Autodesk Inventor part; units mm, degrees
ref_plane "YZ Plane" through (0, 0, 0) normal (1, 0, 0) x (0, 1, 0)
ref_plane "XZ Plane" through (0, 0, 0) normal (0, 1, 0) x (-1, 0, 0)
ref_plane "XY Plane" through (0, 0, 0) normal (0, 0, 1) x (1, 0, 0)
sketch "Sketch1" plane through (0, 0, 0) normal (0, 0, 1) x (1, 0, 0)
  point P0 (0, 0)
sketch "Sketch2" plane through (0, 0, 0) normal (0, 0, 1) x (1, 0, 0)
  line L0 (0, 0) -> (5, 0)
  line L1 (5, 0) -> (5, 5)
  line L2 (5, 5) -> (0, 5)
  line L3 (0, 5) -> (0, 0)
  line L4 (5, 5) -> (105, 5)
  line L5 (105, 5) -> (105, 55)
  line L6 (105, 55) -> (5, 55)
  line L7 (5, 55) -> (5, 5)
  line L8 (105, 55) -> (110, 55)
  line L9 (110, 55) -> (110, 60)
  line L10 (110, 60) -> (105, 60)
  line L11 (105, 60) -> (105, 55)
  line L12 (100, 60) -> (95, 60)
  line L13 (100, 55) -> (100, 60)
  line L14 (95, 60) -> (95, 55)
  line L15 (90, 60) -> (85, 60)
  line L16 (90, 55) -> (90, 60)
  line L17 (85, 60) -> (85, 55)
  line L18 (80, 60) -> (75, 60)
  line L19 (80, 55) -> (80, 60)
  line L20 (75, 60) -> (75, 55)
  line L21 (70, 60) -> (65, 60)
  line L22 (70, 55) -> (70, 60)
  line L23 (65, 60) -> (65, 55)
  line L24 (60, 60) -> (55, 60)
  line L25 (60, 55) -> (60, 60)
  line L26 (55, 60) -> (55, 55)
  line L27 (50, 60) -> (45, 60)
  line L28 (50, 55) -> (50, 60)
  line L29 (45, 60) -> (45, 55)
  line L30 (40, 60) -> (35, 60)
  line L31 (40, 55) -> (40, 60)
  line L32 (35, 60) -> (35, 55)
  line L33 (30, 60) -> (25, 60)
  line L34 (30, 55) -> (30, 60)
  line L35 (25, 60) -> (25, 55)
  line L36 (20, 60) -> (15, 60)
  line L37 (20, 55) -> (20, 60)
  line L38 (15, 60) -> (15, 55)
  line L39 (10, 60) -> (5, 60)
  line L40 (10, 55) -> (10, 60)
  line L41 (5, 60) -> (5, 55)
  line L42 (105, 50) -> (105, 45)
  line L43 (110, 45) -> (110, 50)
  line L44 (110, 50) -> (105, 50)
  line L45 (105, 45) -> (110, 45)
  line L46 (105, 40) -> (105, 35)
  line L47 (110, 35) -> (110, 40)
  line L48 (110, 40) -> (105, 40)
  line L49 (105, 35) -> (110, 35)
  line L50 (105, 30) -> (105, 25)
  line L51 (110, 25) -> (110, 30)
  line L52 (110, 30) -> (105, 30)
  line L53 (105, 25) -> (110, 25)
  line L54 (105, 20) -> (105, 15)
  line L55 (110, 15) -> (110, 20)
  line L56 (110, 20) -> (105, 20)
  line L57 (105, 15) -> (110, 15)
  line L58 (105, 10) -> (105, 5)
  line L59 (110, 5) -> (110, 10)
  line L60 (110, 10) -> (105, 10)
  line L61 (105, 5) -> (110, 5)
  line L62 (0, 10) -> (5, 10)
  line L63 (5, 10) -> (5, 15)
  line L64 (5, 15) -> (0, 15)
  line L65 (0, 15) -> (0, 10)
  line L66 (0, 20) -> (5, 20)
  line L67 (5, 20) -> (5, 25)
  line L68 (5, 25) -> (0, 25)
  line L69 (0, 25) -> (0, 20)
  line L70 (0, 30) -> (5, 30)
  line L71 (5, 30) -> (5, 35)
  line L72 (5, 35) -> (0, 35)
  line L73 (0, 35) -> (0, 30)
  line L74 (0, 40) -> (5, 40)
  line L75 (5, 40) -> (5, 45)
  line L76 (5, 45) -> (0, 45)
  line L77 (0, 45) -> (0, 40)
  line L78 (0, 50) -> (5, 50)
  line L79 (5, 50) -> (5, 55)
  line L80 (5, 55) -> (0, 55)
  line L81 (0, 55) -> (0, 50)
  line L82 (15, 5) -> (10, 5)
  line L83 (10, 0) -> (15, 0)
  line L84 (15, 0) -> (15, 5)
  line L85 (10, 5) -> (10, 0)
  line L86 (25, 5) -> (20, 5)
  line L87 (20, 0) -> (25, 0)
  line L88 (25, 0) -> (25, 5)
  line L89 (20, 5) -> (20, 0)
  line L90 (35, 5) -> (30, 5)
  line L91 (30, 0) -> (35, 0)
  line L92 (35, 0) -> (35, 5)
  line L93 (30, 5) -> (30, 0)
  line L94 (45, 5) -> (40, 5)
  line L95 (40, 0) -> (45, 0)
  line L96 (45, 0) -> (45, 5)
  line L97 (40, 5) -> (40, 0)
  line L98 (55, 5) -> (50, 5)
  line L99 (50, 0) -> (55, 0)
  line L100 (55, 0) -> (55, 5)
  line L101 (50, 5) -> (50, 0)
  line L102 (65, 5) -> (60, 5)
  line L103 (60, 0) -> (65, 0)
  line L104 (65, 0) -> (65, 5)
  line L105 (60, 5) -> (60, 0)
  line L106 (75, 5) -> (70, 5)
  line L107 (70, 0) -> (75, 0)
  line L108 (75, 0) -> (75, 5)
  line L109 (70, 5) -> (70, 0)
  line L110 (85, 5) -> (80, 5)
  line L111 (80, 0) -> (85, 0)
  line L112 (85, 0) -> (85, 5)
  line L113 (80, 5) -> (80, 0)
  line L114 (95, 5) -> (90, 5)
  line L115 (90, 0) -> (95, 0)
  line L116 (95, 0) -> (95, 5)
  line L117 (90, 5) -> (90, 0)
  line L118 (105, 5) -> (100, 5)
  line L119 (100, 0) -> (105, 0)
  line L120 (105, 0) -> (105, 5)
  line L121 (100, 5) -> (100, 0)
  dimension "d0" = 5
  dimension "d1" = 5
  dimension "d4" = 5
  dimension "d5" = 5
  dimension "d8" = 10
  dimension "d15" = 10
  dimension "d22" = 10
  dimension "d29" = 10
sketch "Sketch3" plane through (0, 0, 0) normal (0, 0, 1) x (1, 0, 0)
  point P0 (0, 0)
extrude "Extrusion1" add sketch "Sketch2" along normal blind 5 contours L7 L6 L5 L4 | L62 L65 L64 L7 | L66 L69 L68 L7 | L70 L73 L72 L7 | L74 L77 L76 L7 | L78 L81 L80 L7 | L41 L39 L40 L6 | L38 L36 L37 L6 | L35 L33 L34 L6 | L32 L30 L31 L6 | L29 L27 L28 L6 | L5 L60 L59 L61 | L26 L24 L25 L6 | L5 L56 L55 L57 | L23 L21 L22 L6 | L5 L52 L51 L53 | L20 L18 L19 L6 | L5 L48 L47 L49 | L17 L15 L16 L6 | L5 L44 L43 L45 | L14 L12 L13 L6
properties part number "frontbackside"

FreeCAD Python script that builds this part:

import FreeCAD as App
import Part
import Sketcher


def add_polygon(sketch, points):
    """Adds a closed chain of lines whose ends are joined by coincident constraints."""
    first, n = sketch.GeometryCount, len(points)
    for a, b in zip(points, points[1:] + points[:1]):
        sketch.addGeometry(Part.LineSegment(App.Vector(*a, 0), App.Vector(*b, 0)), False)
    for i in range(n):
        sketch.addConstraint(Sketcher.Constraint("Coincident", first + i, 2, first + (i + 1) % n, 1))

doc = App.newDocument("Part")
body = doc.addObject("PartDesign::Body", "Body")

sketch1 = body.newObject("Sketcher::SketchObject", "Sketch")
sketch1.AttachmentSupport = (doc.getObject("XY_Plane"), [""])
sketch1.MapMode = "FlatFace"
add_polygon(sketch1, [(5, 10), (5, 5), (110, 5), (110, 10), (105, 10), (105, 15), (110, 15), (110, 20), (105, 20), (105, 25), (110, 25), (110, 30), (105, 30), (105, 35), (110, 35), (110, 40), (105, 40), (105, 45), (110, 45), (110, 50), (105, 50), (105, 55), (100, 55), (100, 60), (95, 60), (95, 55), (90, 55), (90, 60), (85, 60), (85, 55), (80, 55), (80, 60), (75, 60), (75, 55), (70, 55), (70, 60), (65, 60), (65, 55), (60, 55), (60, 60), (55, 60), (55, 55), (50, 55), (50, 60), (45, 60), (45, 55), (40, 55), (40, 60), (35, 60), (35, 55), (30, 55), (30, 60), (25, 60), (25, 55), (20, 55), (20, 60), (15, 60), (15, 55), (10, 55), (10, 60), (5, 60), (5, 55), (0, 55), (0, 50), (5, 50), (5, 45), (0, 45), (0, 40), (5, 40), (5, 35), (0, 35), (0, 30), (5, 30), (5, 25), (0, 25), (0, 20), (5, 20), (5, 15), (0, 15), (0, 10)])
sketch1.addConstraint(Sketcher.Constraint("Vertical", 0))
sketch1.addConstraint(Sketcher.Constraint("Horizontal", 1))
sketch1.addConstraint(Sketcher.Constraint("Vertical", 2))
sketch1.addConstraint(Sketcher.Constraint("Horizontal", 3))
sketch1.addConstraint(Sketcher.Constraint("Vertical", 4))
sketch1.addConstraint(Sketcher.Constraint("Horizontal", 5))
sketch1.addConstraint(Sketcher.Constraint("Vertical", 6))
sketch1.addConstraint(Sketcher.Constraint("Horizontal", 7))
sketch1.addConstraint(Sketcher.Constraint("Vertical", 8))
sketch1.addConstraint(Sketcher.Constraint("Horizontal", 9))
sketch1.addConstraint(Sketcher.Constraint("Vertical", 10))
sketch1.addConstraint(Sketcher.Constraint("Horizontal", 11))
sketch1.addConstraint(Sketcher.Constraint("Vertical", 12))
sketch1.addConstraint(Sketcher.Constraint("Horizontal", 13))
sketch1.addConstraint(Sketcher.Constraint("Vertical", 14))
sketch1.addConstraint(Sketcher.Constraint("Horizontal", 15))
sketch1.addConstraint(Sketcher.Constraint("Vertical", 16))
sketch1.addConstraint(Sketcher.Constraint("Horizontal", 17))
sketch1.addConstraint(Sketcher.Constraint("Vertical", 18))
sketch1.addConstraint(Sketcher.Constraint("Horizontal", 19))
sketch1.addConstraint(Sketcher.Constraint("Vertical", 20))
sketch1.addConstraint(Sketcher.Constraint("Horizontal", 21))
sketch1.addConstraint(Sketcher.Constraint("Vertical", 22))
sketch1.addConstraint(Sketcher.Constraint("Horizontal", 23))
sketch1.addConstraint(Sketcher.Constraint("Vertical", 24))
sketch1.addConstraint(Sketcher.Constraint("Horizontal", 25))
sketch1.addConstraint(Sketcher.Constraint("Vertical", 26))
sketch1.addConstraint(Sketcher.Constraint("Horizontal", 27))
sketch1.addConstraint(Sketcher.Constraint("Vertical", 28))
sketch1.addConstraint(Sketcher.Constraint("Horizontal", 29))
sketch1.addConstraint(Sketcher.Constraint("Vertical", 30))
sketch1.addConstraint(Sketcher.Constraint("Horizontal", 31))
sketch1.addConstraint(Sketcher.Constraint("Vertical", 32))
sketch1.addConstraint(Sketcher.Constraint("Horizontal", 33))
sketch1.addConstraint(Sketcher.Constraint("Vertical", 34))
sketch1.addConstraint(Sketcher.Constraint("Horizontal", 35))
sketch1.addConstraint(Sketcher.Constraint("Vertical", 36))
sketch1.addConstraint(Sketcher.Constraint("Horizontal", 37))
sketch1.addConstraint(Sketcher.Constraint("Vertical", 38))
sketch1.addConstraint(Sketcher.Constraint("Horizontal", 39))
sketch1.addConstraint(Sketcher.Constraint("Vertical", 40))
sketch1.addConstraint(Sketcher.Constraint("Horizontal", 41))
sketch1.addConstraint(Sketcher.Constraint("Vertical", 42))
sketch1.addConstraint(Sketcher.Constraint("Horizontal", 43))
sketch1.addConstraint(Sketcher.Constraint("Vertical", 44))
sketch1.addConstraint(Sketcher.Constraint("Horizontal", 45))
sketch1.addConstraint(Sketcher.Constraint("Vertical", 46))
sketch1.addConstraint(Sketcher.Constraint("Horizontal", 47))
sketch1.addConstraint(Sketcher.Constraint("Vertical", 48))
sketch1.addConstraint(Sketcher.Constraint("Horizontal", 49))
sketch1.addConstraint(Sketcher.Constraint("Vertical", 50))
sketch1.addConstraint(Sketcher.Constraint("Horizontal", 51))
sketch1.addConstraint(Sketcher.Constraint("Vertical", 52))
sketch1.addConstraint(Sketcher.Constraint("Horizontal", 53))
sketch1.addConstraint(Sketcher.Constraint("Vertical", 54))
sketch1.addConstraint(Sketcher.Constraint("Horizontal", 55))
sketch1.addConstraint(Sketcher.Constraint("Vertical", 56))
sketch1.addConstraint(Sketcher.Constraint("Horizontal", 57))
sketch1.addConstraint(Sketcher.Constraint("Vertical", 58))
sketch1.addConstraint(Sketcher.Constraint("Horizontal", 59))
sketch1.addConstraint(Sketcher.Constraint("Vertical", 60))
sketch1.addConstraint(Sketcher.Constraint("Horizontal", 61))
sketch1.addConstraint(Sketcher.Constraint("Vertical", 62))
sketch1.addConstraint(Sketcher.Constraint("Horizontal", 63))
sketch1.addConstraint(Sketcher.Constraint("Vertical", 64))
sketch1.addConstraint(Sketcher.Constraint("Horizontal", 65))
sketch1.addConstraint(Sketcher.Constraint("Vertical", 66))
sketch1.addConstraint(Sketcher.Constraint("Horizontal", 67))
sketch1.addConstraint(Sketcher.Constraint("Vertical", 68))
sketch1.addConstraint(Sketcher.Constraint("Horizontal", 69))
sketch1.addConstraint(Sketcher.Constraint("Vertical", 70))
sketch1.addConstraint(Sketcher.Constraint("Horizontal", 71))
sketch1.addConstraint(Sketcher.Constraint("Vertical", 72))
sketch1.addConstraint(Sketcher.Constraint("Horizontal", 73))
sketch1.addConstraint(Sketcher.Constraint("Vertical", 74))
sketch1.addConstraint(Sketcher.Constraint("Horizontal", 75))
sketch1.addConstraint(Sketcher.Constraint("Vertical", 76))
sketch1.addConstraint(Sketcher.Constraint("Horizontal", 77))
sketch1.addConstraint(Sketcher.Constraint("Vertical", 78))
sketch1.addConstraint(Sketcher.Constraint("Horizontal", 79))
sketch1.addConstraint(Sketcher.Constraint("PointOnObject", 61, 2, -2))
sketch1.addConstraint(Sketcher.Constraint("PointOnObject", 65, 2, -2))
sketch1.addConstraint(Sketcher.Constraint("PointOnObject", 69, 2, -2))
sketch1.addConstraint(Sketcher.Constraint("PointOnObject", 73, 2, -2))
sketch1.addConstraint(Sketcher.Constraint("PointOnObject", 77, 2, -2))
sketch1.addConstraint(Sketcher.Constraint("Horizontal", 21, 2, 24, 2))
sketch1.addConstraint(Sketcher.Constraint("Horizontal", 23, 2, 26, 2))
sketch1.addConstraint(Sketcher.Constraint("Horizontal", 25, 2, 28, 2))
sketch1.addConstraint(Sketcher.Constraint("Horizontal", 27, 2, 30, 2))
sketch1.addConstraint(Sketcher.Constraint("Horizontal", 29, 2, 32, 2))
sketch1.addConstraint(Sketcher.Constraint("Horizontal", 31, 2, 34, 2))
sketch1.addConstraint(Sketcher.Constraint("Horizontal", 33, 2, 36, 2))
sketch1.addConstraint(Sketcher.Constraint("Horizontal", 35, 2, 38, 2))
sketch1.addConstraint(Sketcher.Constraint("Horizontal", 37, 2, 40, 2))
sketch1.addConstraint(Sketcher.Constraint("Horizontal", 39, 2, 42, 2))
sketch1.addConstraint(Sketcher.Constraint("Horizontal", 41, 2, 44, 2))
sketch1.addConstraint(Sketcher.Constraint("Horizontal", 43, 2, 46, 2))
sketch1.addConstraint(Sketcher.Constraint("Horizontal", 45, 2, 48, 2))
sketch1.addConstraint(Sketcher.Constraint("Horizontal", 47, 2, 50, 2))
sketch1.addConstraint(Sketcher.Constraint("Horizontal", 49, 2, 52, 2))
sketch1.addConstraint(Sketcher.Constraint("Horizontal", 51, 2, 54, 2))
sketch1.addConstraint(Sketcher.Constraint("Horizontal", 53, 2, 56, 2))
sketch1.addConstraint(Sketcher.Constraint("Horizontal", 55, 2, 58, 2))
sketch1.addConstraint(Sketcher.Constraint("Horizontal", 57, 2, 60, 2))
sketch1.addConstraint(Sketcher.Constraint("Horizontal", 19, 2, 62, 2))
sketch1.addConstraint(Sketcher.Constraint("Horizontal", 17, 2, 64, 2))
sketch1.addConstraint(Sketcher.Constraint("Horizontal", 15, 2, 66, 2))
sketch1.addConstraint(Sketcher.Constraint("Horizontal", 13, 2, 68, 2))
sketch1.addConstraint(Sketcher.Constraint("Horizontal", 11, 2, 70, 2))
sketch1.addConstraint(Sketcher.Constraint("Horizontal", 9, 2, 72, 2))
sketch1.addConstraint(Sketcher.Constraint("Horizontal", 7, 2, 74, 2))
sketch1.addConstraint(Sketcher.Constraint("Horizontal", 5, 2, 76, 2))
sketch1.addConstraint(Sketcher.Constraint("Horizontal", 3, 2, 78, 2))
sketch1.addConstraint(Sketcher.Constraint("Vertical", 2, 2, 5, 2))
sketch1.addConstraint(Sketcher.Constraint("Vertical", 4, 2, 7, 2))
sketch1.addConstraint(Sketcher.Constraint("Vertical", 6, 2, 9, 2))
sketch1.addConstraint(Sketcher.Constraint("Vertical", 8, 2, 11, 2))
sketch1.addConstraint(Sketcher.Constraint("Vertical", 10, 2, 13, 2))
sketch1.addConstraint(Sketcher.Constraint("Vertical", 12, 2, 15, 2))
sketch1.addConstraint(Sketcher.Constraint("Vertical", 14, 2, 17, 2))
sketch1.addConstraint(Sketcher.Constraint("Vertical", 16, 2, 19, 2))
sketch1.addConstraint(Sketcher.Constraint("Vertical", 0, 2, 59, 2))
sketch1.addConstraint(Sketcher.Constraint("Vertical", 60, 2, 63, 2))
sketch1.addConstraint(Sketcher.Constraint("Vertical", 64, 2, 67, 2))
sketch1.addConstraint(Sketcher.Constraint("Vertical", 68, 2, 71, 2))
sketch1.addConstraint(Sketcher.Constraint("Vertical", 72, 2, 75, 2))
sketch1.addConstraint(Sketcher.Constraint("Equal", 19, 21))
sketch1.addConstraint(Sketcher.Constraint("Equal", 21, 23))
sketch1.addConstraint(Sketcher.Constraint("Equal", 23, 25))
sketch1.addConstraint(Sketcher.Constraint("Equal", 25, 27))
sketch1.addConstraint(Sketcher.Constraint("Equal", 27, 29))
sketch1.addConstraint(Sketcher.Constraint("Equal", 29, 31))
sketch1.addConstraint(Sketcher.Constraint("Equal", 31, 33))
sketch1.addConstraint(Sketcher.Constraint("Equal", 33, 35))
sketch1.addConstraint(Sketcher.Constraint("Equal", 35, 37))
sketch1.addConstraint(Sketcher.Constraint("Equal", 37, 39))
sketch1.addConstraint(Sketcher.Constraint("Equal", 39, 41))
sketch1.addConstraint(Sketcher.Constraint("Equal", 41, 43))
sketch1.addConstraint(Sketcher.Constraint("Equal", 43, 45))
sketch1.addConstraint(Sketcher.Constraint("Equal", 45, 47))
sketch1.addConstraint(Sketcher.Constraint("Equal", 47, 49))
sketch1.addConstraint(Sketcher.Constraint("Equal", 49, 51))
sketch1.addConstraint(Sketcher.Constraint("Equal", 51, 53))
sketch1.addConstraint(Sketcher.Constraint("Equal", 53, 55))
sketch1.addConstraint(Sketcher.Constraint("Equal", 55, 57))
sketch1.addConstraint(Sketcher.Constraint("Equal", 57, 59))
sketch1.addConstraint(Sketcher.Constraint("Equal", 59, 61))
sketch1.addConstraint(Sketcher.Constraint("Equal", 79, 0))
sketch1.addConstraint(Sketcher.Constraint("Equal", 2, 4))
sketch1.addConstraint(Sketcher.Constraint("Equal", 4, 6))
sketch1.addConstraint(Sketcher.Constraint("Equal", 6, 8))
sketch1.addConstraint(Sketcher.Constraint("Equal", 8, 10))
sketch1.addConstraint(Sketcher.Constraint("Equal", 10, 12))
sketch1.addConstraint(Sketcher.Constraint("Equal", 12, 14))
sketch1.addConstraint(Sketcher.Constraint("Equal", 14, 16))
sketch1.addConstraint(Sketcher.Constraint("Equal", 16, 18))
sketch1.addConstraint(Sketcher.Constraint("Equal", 18, 20))
sketch1.addConstraint(Sketcher.Constraint("Equal", 20, 22))
sketch1.addConstraint(Sketcher.Constraint("DistanceX", 3, 2, 3, 1, 5.0))
sketch1.addConstraint(Sketcher.Constraint("DistanceY", -1, 1, 0, 2, 5.0))
pad1 = body.newObject("PartDesign::Pad", "Pad")
pad1.Profile = sketch1
pad1.Length = 5

doc.recompute()
